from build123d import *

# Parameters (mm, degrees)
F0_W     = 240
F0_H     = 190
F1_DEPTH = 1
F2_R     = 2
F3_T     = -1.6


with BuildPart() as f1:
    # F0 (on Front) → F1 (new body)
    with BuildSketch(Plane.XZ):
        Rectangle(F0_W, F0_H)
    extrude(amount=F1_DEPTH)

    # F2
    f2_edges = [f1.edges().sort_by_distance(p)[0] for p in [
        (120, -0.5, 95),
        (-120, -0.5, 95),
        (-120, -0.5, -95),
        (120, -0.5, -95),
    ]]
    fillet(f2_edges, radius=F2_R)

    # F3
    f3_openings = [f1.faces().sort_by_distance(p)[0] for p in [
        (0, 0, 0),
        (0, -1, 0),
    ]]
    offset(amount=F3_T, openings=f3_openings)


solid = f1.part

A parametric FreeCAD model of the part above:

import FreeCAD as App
import Part
import Sketcher

V = App.Vector
Q = App.Units.Quantity


def edges_at(feature, points):
    """Names of the edges that pass closest to the given points."""
    edges = feature.Shape.Edges
    near = lambda p: min(range(len(edges)), key=lambda i: edges[i].distToShape(Part.Vertex(*p))[0])
    return sorted({f"Edge{near(p) + 1}" for p in points})


def faces_at(feature, points):
    """Names of the faces that lie closest to the given points."""
    faces = feature.Shape.Faces
    near = lambda p: min(range(len(faces)), key=lambda i: faces[i].distToShape(Part.Vertex(*p))[0])
    return sorted({f"Face{near(p) + 1}" for p in points})

doc = App.newDocument("Part")
body = doc.addObject("PartDesign::Body", "Body")

# Sketch on XZ plane
sketch1 = body.newObject("Sketcher::SketchObject", "Sketch")
sketch1.AttachmentSupport = (doc.getObject("XZ_Plane"), [""])
sketch1.MapMode = "FlatFace"
sketch1.addGeometry([
    Part.LineSegment(V(-120, 95, 0), V(-120, -95, 0)),
    Part.LineSegment(V(-120, -95, 0), V(120, -95, 0)),
    Part.LineSegment(V(120, -95, 0), V(120, 95, 0)),
    Part.LineSegment(V(120, 95, 0), V(-120, 95, 0)),
], False)
sketch1.addConstraint([
    Sketcher.Constraint("Coincident", 0, 2, 1, 1),
    Sketcher.Constraint("Coincident", 1, 2, 2, 1),
    Sketcher.Constraint("Coincident", 2, 2, 3, 1),
    Sketcher.Constraint("Coincident", 3, 2, 0, 1),
    Sketcher.Constraint("Vertical", 0),
    Sketcher.Constraint("Horizontal", 1),
    Sketcher.Constraint("Vertical", 2),
    Sketcher.Constraint("Horizontal", 3),
    Sketcher.Constraint("Symmetric", 0, 2, 2, 2, -1, 1),
    Sketcher.Constraint("DistanceX", 1, 1, 1, 2, Q("240 mm")),
    Sketcher.Constraint("DistanceY", 0, 2, 0, 1, Q("190 mm")),
])
pad1 = body.newObject("PartDesign::Pad", "Pad")
pad1.Profile = sketch1
pad1.Length = 1
doc.recompute()

fillet = body.newObject("PartDesign::Fillet", "Fillet")
fillet.Base = (pad1, edges_at(pad1, [
    (120, -0.5, 95),
    (-120, -0.5, 95),
    (-120, -0.5, -95),
    (120, -0.5, -95),
]))
fillet.Radius = 2
doc.recompute()

thickness = body.newObject("PartDesign::Thickness", "Thickness")
thickness.Base = (fillet, faces_at(fillet, [(0, 0, 0), (0, -1, 0)]))
thickness.Value = 1.6
thickness.Reversed = True
thickness.Join = "Arc"

doc.recompute()
